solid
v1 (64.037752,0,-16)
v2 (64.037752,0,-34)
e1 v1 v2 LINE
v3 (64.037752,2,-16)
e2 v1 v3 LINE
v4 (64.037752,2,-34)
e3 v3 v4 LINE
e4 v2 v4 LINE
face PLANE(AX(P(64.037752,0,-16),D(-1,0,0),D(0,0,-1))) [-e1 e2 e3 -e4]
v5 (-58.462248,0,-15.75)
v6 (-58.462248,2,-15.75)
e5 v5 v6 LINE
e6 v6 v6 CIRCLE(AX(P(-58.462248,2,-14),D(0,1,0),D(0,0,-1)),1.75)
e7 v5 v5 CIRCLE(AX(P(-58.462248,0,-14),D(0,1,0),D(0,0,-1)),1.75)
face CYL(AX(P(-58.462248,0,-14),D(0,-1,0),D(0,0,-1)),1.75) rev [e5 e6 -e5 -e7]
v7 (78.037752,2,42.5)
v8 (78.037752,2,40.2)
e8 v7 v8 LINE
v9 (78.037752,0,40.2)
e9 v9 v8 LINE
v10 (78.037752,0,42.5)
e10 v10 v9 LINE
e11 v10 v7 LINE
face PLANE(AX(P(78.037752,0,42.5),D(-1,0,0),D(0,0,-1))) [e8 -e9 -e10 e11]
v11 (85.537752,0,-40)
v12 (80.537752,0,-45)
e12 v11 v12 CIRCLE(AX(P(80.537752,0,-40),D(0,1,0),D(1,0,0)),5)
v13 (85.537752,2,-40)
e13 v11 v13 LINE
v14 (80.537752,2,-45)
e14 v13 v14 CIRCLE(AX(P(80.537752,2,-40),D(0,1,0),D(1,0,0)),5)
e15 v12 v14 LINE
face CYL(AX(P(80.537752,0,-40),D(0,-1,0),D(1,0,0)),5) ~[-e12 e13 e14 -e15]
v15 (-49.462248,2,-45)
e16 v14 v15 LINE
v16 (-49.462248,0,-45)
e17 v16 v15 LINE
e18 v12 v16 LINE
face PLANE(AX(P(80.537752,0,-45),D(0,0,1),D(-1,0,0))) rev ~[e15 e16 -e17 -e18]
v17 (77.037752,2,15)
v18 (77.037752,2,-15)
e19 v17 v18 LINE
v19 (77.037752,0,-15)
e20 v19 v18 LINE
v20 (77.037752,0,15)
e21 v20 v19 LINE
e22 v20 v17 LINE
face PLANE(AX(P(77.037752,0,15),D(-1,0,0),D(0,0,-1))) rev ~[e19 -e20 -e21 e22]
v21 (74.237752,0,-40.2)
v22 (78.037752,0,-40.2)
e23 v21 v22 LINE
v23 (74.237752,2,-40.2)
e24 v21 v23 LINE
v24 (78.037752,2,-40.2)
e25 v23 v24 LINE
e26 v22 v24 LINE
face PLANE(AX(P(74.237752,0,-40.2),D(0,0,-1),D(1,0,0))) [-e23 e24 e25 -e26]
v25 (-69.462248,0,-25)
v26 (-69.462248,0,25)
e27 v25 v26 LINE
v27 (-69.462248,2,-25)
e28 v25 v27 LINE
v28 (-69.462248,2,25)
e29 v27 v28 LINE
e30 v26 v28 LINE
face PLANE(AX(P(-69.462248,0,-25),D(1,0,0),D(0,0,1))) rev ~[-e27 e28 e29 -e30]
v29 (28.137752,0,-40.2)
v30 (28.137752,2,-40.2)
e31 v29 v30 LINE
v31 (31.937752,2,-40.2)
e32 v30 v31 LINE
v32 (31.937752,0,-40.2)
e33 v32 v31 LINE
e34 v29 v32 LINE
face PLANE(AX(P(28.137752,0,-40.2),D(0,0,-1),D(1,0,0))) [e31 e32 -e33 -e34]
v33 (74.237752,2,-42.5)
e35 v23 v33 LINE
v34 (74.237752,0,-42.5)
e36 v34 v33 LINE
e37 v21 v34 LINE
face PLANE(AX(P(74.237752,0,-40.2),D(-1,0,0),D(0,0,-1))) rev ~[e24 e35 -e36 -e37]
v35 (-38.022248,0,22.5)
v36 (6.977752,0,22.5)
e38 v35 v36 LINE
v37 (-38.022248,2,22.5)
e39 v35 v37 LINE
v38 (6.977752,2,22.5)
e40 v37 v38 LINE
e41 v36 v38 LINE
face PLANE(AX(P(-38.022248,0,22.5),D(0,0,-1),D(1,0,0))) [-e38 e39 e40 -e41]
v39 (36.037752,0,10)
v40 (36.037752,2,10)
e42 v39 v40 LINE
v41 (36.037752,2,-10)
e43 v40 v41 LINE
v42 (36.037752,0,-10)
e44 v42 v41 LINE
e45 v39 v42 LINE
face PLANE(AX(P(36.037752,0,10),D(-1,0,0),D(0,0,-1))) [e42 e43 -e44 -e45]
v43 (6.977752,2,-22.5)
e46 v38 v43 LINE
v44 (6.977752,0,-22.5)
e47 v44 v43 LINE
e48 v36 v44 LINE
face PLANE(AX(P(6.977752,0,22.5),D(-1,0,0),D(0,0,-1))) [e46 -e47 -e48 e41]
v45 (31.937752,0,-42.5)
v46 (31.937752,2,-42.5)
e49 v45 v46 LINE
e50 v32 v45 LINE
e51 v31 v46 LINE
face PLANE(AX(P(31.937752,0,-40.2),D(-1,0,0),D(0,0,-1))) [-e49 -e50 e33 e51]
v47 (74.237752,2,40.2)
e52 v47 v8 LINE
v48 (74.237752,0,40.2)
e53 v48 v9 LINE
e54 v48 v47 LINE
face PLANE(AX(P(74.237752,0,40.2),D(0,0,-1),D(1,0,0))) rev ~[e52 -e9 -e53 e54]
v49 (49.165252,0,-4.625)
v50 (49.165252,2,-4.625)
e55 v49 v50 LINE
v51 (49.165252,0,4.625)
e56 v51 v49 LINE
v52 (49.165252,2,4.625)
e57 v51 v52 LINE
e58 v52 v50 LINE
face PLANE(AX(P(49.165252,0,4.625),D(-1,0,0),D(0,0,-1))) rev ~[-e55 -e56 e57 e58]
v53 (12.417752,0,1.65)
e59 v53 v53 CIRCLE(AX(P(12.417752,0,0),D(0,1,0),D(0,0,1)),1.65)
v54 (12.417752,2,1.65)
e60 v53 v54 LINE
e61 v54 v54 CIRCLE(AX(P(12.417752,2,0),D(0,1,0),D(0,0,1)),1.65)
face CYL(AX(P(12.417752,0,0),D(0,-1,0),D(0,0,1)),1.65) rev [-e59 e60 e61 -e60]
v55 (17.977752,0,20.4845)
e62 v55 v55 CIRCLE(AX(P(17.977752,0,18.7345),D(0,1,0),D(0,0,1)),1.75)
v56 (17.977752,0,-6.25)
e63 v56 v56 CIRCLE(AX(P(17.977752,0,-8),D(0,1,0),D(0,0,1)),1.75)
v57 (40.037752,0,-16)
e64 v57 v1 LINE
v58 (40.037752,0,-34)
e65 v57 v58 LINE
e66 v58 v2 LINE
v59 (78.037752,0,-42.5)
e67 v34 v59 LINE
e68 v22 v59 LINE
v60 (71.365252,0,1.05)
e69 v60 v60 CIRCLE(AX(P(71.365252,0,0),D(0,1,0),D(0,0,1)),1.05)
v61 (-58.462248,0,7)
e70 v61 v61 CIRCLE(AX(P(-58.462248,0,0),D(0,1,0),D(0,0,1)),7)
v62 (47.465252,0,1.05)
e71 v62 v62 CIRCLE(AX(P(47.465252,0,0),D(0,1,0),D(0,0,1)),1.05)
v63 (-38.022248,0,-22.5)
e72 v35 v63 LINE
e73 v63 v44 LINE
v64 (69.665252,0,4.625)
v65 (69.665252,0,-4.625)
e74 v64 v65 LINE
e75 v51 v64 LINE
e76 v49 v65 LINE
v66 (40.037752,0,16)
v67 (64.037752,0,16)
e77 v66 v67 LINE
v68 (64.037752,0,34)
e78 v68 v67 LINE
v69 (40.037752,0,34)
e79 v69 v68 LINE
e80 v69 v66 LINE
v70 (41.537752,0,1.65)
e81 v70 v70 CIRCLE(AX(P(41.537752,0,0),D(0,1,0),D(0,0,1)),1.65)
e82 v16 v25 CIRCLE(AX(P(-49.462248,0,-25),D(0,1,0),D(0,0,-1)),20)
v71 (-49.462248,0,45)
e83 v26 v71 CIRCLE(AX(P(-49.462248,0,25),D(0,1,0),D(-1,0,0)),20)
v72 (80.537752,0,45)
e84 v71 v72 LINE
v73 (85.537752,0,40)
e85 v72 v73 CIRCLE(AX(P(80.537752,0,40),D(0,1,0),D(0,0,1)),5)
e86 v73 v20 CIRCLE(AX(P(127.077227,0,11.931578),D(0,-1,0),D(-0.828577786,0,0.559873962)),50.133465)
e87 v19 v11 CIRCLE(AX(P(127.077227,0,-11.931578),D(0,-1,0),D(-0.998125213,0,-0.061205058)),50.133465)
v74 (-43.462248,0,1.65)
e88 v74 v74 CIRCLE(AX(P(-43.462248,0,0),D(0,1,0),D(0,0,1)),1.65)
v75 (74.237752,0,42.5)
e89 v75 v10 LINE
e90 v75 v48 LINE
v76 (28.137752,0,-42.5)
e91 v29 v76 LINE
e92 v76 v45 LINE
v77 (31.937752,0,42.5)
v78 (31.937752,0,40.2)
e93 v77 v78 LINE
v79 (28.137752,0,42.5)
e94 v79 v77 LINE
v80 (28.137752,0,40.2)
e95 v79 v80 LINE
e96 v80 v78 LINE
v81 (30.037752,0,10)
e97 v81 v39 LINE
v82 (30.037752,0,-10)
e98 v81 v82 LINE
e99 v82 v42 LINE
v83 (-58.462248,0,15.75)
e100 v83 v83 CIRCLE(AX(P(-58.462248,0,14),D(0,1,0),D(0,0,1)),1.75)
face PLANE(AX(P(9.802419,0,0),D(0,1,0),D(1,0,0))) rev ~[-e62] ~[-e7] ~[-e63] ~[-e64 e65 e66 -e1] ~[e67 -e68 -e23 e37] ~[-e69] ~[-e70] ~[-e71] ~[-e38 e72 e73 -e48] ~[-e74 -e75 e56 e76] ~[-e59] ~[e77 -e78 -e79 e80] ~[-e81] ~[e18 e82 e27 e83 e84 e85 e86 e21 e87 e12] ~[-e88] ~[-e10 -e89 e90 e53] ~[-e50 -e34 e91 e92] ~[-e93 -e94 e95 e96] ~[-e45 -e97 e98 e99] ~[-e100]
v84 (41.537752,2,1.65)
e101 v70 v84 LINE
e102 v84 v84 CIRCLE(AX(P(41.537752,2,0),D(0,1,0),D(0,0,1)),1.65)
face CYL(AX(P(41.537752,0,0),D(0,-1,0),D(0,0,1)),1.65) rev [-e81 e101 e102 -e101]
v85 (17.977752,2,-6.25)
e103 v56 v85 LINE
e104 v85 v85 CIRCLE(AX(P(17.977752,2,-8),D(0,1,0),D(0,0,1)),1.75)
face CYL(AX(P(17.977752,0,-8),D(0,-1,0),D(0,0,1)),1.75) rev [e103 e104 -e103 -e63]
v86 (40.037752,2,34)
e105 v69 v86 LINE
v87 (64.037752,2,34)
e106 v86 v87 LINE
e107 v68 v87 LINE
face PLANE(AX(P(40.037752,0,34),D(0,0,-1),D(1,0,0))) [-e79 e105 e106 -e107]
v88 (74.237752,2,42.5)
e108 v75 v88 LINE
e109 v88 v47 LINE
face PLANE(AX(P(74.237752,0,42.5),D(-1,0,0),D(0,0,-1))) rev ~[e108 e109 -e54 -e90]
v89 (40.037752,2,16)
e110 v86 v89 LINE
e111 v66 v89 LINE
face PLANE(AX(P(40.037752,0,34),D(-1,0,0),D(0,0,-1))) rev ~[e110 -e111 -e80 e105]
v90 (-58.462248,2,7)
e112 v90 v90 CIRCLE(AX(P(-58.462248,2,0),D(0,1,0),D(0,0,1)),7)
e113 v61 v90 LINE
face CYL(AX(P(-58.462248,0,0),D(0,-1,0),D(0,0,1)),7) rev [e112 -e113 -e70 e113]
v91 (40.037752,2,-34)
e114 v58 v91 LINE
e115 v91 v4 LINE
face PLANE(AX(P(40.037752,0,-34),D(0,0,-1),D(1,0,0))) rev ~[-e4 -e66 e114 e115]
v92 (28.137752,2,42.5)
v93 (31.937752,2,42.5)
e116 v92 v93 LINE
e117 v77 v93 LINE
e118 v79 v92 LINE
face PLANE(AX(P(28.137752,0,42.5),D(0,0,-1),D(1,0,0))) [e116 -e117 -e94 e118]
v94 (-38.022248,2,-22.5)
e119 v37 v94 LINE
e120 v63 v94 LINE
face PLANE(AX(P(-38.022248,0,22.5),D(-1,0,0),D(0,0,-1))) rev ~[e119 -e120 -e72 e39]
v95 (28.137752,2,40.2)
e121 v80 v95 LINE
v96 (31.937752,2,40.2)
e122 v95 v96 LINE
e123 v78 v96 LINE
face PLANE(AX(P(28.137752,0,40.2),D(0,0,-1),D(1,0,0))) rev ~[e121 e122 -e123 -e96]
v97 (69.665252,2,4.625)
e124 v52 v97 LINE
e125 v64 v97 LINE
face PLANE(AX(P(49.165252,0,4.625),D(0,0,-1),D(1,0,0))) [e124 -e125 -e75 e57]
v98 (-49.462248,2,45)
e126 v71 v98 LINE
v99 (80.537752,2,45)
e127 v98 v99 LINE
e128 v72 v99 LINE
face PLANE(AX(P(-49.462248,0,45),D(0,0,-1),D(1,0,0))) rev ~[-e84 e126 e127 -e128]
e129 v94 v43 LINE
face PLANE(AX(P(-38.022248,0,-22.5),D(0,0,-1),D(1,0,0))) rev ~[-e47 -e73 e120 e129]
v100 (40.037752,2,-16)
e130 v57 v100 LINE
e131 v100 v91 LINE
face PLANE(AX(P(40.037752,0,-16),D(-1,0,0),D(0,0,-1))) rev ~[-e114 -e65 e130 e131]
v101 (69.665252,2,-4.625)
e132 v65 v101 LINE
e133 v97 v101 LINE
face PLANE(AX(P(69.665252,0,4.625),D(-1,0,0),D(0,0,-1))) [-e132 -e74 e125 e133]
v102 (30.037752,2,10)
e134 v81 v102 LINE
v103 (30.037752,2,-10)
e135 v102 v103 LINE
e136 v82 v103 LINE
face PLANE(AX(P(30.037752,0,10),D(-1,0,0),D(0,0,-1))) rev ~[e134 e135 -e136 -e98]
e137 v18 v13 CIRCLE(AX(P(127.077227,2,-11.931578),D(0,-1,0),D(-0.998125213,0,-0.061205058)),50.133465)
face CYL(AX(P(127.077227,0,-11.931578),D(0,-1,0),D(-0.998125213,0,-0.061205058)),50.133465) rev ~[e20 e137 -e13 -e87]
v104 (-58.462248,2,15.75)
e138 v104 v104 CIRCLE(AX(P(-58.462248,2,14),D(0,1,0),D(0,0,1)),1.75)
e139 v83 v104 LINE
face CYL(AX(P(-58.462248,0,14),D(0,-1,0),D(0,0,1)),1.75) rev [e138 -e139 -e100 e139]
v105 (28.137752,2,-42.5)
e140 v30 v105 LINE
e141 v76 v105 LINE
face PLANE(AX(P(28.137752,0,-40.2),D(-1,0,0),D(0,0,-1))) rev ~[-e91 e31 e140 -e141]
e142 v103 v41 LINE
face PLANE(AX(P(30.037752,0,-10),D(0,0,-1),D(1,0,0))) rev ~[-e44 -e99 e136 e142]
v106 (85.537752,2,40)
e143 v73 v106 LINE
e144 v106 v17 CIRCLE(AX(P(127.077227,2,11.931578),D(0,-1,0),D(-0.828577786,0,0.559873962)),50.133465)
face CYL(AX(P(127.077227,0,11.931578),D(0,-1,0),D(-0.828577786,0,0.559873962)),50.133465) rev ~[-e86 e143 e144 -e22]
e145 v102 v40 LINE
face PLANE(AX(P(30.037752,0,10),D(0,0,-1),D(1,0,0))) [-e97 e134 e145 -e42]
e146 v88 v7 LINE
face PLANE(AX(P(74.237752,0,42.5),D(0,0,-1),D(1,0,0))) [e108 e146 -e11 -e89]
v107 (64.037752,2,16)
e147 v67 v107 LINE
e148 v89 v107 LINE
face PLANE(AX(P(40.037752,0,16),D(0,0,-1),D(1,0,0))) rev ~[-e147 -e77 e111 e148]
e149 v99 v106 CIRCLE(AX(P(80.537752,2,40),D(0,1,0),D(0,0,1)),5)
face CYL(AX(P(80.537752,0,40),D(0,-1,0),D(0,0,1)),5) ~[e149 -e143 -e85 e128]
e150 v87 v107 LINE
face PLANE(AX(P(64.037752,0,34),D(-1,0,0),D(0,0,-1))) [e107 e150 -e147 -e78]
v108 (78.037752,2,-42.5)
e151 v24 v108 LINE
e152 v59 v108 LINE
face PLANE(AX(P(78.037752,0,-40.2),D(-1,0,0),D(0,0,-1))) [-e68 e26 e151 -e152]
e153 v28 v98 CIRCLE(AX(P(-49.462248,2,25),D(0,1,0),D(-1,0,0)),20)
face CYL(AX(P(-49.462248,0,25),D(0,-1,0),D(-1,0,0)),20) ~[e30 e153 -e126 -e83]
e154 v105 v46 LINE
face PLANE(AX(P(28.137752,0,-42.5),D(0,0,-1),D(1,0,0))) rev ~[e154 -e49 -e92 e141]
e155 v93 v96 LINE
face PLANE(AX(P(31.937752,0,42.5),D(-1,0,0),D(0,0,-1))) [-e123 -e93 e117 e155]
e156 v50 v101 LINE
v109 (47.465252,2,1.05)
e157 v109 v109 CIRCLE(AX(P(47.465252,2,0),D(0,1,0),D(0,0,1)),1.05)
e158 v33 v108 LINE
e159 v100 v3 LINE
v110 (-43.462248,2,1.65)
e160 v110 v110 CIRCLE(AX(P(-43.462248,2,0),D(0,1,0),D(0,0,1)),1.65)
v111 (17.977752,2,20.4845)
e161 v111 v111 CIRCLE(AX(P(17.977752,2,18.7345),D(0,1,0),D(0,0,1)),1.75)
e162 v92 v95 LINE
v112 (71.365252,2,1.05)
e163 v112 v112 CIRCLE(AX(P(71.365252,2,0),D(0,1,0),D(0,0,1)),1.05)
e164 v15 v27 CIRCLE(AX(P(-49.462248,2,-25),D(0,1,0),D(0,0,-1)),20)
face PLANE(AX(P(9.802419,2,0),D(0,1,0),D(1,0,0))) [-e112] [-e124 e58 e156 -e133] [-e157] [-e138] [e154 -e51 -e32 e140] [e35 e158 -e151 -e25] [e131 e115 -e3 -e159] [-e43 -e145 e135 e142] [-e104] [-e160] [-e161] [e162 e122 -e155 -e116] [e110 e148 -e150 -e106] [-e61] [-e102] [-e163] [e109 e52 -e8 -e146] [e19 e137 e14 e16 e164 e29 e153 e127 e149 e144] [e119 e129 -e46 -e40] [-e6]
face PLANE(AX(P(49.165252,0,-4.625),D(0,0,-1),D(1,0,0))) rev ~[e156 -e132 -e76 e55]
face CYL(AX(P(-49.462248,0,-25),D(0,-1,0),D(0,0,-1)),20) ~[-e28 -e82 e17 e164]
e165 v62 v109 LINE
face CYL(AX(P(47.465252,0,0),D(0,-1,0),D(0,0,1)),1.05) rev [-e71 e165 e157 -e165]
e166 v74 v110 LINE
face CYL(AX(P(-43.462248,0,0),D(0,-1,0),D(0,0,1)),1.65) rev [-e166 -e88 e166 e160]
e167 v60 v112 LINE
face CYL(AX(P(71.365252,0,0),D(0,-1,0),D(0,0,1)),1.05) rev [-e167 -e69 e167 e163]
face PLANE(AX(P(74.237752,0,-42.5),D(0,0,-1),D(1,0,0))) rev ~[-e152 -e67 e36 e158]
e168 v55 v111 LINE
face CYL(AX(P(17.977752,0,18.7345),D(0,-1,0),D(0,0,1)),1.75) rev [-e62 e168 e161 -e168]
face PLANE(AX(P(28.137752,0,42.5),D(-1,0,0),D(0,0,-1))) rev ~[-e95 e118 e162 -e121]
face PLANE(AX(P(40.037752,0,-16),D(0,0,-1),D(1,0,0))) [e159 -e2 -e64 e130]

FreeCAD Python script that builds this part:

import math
import FreeCAD as App
import Part
import Sketcher


def add_polygon(sketch, points):
    """Adds a closed chain of lines whose ends are joined by coincident constraints."""
    first, n = sketch.GeometryCount, len(points)
    for a, b in zip(points, points[1:] + points[:1]):
        sketch.addGeometry(Part.LineSegment(App.Vector(*a, 0), App.Vector(*b, 0)), False)
    for i in range(n):
        sketch.addConstraint(Sketcher.Constraint("Coincident", first + i, 2, first + (i + 1) % n, 1))

doc = App.newDocument("Part")
body = doc.addObject("PartDesign::Body", "Body")

# Sketch on XZ plane
sketch1 = body.newObject("Sketcher::SketchObject", "Sketch")
sketch1.AttachmentSupport = (doc.getObject("XZ_Plane"), [""])
sketch1.MapMode = "FlatFace"
sketch1.addGeometry(Part.LineSegment(App.Vector(-49.5, 45, 0), App.Vector(80.5, 45, 0)), False)  # 0
sketch1.addGeometry(Part.ArcOfCircle(Part.Circle(App.Vector(80.5, 40, 0), App.Vector(0, 0, 1), 5), math.radians(0), math.radians(90)), False)  # 1
sketch1.addGeometry(Part.ArcOfCircle(Part.Circle(App.Vector(127.1, 11.9, 0), App.Vector(0, 0, 1), 50.1), math.radians(146), math.radians(176)), False)  # 2
sketch1.addGeometry(Part.LineSegment(App.Vector(77, 15, 0), App.Vector(77, -15, 0)), False)  # 3
sketch1.addGeometry(Part.ArcOfCircle(Part.Circle(App.Vector(127.1, -11.9, 0), App.Vector(0, 0, 1), 50.1), math.radians(-176), math.radians(-146)), False)  # 4
sketch1.addGeometry(Part.ArcOfCircle(Part.Circle(App.Vector(80.5, -40, 0), App.Vector(0, 0, 1), 5), math.radians(-90), math.radians(0)), False)  # 5
sketch1.addGeometry(Part.LineSegment(App.Vector(80.5, -45, 0), App.Vector(-49.5, -45, 0)), False)  # 6
sketch1.addGeometry(Part.ArcOfCircle(Part.Circle(App.Vector(-49.5, -25, 0), App.Vector(0, 0, 1), 20), math.radians(180), math.radians(270)), False)  # 7
sketch1.addGeometry(Part.LineSegment(App.Vector(-69.5, -25, 0), App.Vector(-69.5, 25, 0)), False)  # 8
sketch1.addGeometry(Part.ArcOfCircle(Part.Circle(App.Vector(-49.5, 25, 0), App.Vector(0, 0, 1), 20), math.radians(90), math.radians(180)), False)  # 9
sketch1.addGeometry(Part.Circle(App.Vector(-58.5, 14, 0), App.Vector(0, 0, 1), 1.8), False)  # 10
add_polygon(sketch1, [(31.9, 42.5), (28.1, 42.5), (28.1, 40.2), (31.9, 40.2)])  # lines 11-14
add_polygon(sketch1, [(78, 42.5), (74.2, 42.5), (74.2, 40.2), (78, 40.2)])  # lines 15-18
add_polygon(sketch1, [(64, 34), (40, 34), (40, 16), (64, 16)])  # lines 19-22
sketch1.addGeometry(Part.Circle(App.Vector(18, 18.7, 0), App.Vector(0, 0, 1), 1.8), False)  # 23
sketch1.addGeometry(Part.Circle(App.Vector(-58.5, 0, 0), App.Vector(0, 0, 1), 7), False)  # 24
sketch1.addGeometry(Part.Circle(App.Vector(-43.5, 0, 0), App.Vector(0, 0, 1), 1.6), False)  # 25
sketch1.addGeometry(Part.Circle(App.Vector(-58.5, -14, 0), App.Vector(0, 0, 1), 1.8), False)  # 26
add_polygon(sketch1, [(7, 22.5), (-38, 22.5), (-38, -22.5), (7, -22.5)])  # lines 27-30
sketch1.addGeometry(Part.Circle(App.Vector(12.4, 0, 0), App.Vector(0, 0, 1), 1.6), False)  # 31
sketch1.addGeometry(Part.Circle(App.Vector(18, -8, 0), App.Vector(0, 0, 1), 1.8), False)  # 32
add_polygon(sketch1, [(36, 10), (30, 10), (30, -10), (36, -10)])  # lines 33-36
sketch1.addGeometry(Part.Circle(App.Vector(41.5, 0, 0), App.Vector(0, 0, 1), 1.6), False)  # 37
sketch1.addGeometry(Part.Circle(App.Vector(47.5, 0, 0), App.Vector(0, 0, 1), 1.1), False)  # 38
add_polygon(sketch1, [(69.7, 4.6), (49.2, 4.6), (49.2, -4.6), (69.7, -4.6)])  # lines 39-42
sketch1.addGeometry(Part.Circle(App.Vector(71.4, 0, 0), App.Vector(0, 0, 1), 1.1), False)  # 43
add_polygon(sketch1, [(31.9, -40.2), (28.1, -40.2), (28.1, -42.5), (31.9, -42.5)])  # lines 44-47
add_polygon(sketch1, [(64, -16), (40, -16), (40, -34), (64, -34)])  # lines 48-51
add_polygon(sketch1, [(78, -40.2), (74.2, -40.2), (74.2, -42.5), (78, -42.5)])  # lines 52-55
sketch1.addConstraint([
    Sketcher.Constraint("Tangent", 0, 2, 1, 2),
    Sketcher.Constraint("Coincident", 1, 1, 2, 1),
    Sketcher.Constraint("Coincident", 2, 2, 3, 1),
    Sketcher.Constraint("Coincident", 3, 2, 4, 1),
    Sketcher.Constraint("Coincident", 4, 2, 5, 2),
    Sketcher.Constraint("Tangent", 5, 1, 6, 1),
    Sketcher.Constraint("Tangent", 6, 2, 7, 2),
    Sketcher.Constraint("Tangent", 7, 1, 8, 1),
    Sketcher.Constraint("Tangent", 8, 2, 9, 2),
    Sketcher.Constraint("Tangent", 9, 1, 0, 1),
    Sketcher.Constraint("Horizontal", 0),
    Sketcher.Constraint("Vertical", 3),
    Sketcher.Constraint("Horizontal", 6),
    Sketcher.Constraint("Vertical", 8),
    Sketcher.Constraint("Horizontal", 11),
    Sketcher.Constraint("Vertical", 12),
    Sketcher.Constraint("Horizontal", 13),
    Sketcher.Constraint("Vertical", 14),
    Sketcher.Constraint("Horizontal", 15),
    Sketcher.Constraint("Vertical", 16),
    Sketcher.Constraint("Horizontal", 17),
    Sketcher.Constraint("Vertical", 18),
    Sketcher.Constraint("Horizontal", 19),
    Sketcher.Constraint("Vertical", 20),
    Sketcher.Constraint("Horizontal", 21),
    Sketcher.Constraint("Vertical", 22),
    Sketcher.Constraint("Horizontal", 27),
    Sketcher.Constraint("Vertical", 28),
    Sketcher.Constraint("Horizontal", 29),
    Sketcher.Constraint("Vertical", 30),
    Sketcher.Constraint("Horizontal", 33),
    Sketcher.Constraint("Vertical", 34),
    Sketcher.Constraint("Horizontal", 35),
    Sketcher.Constraint("Vertical", 36),
    Sketcher.Constraint("Horizontal", 39),
    Sketcher.Constraint("Vertical", 40),
    Sketcher.Constraint("Horizontal", 41),
    Sketcher.Constraint("Vertical", 42),
    Sketcher.Constraint("Horizontal", 44),
    Sketcher.Constraint("Vertical", 45),
    Sketcher.Constraint("Horizontal", 46),
    Sketcher.Constraint("Vertical", 47),
    Sketcher.Constraint("Horizontal", 48),
    Sketcher.Constraint("Vertical", 49),
    Sketcher.Constraint("Horizontal", 50),
    Sketcher.Constraint("Vertical", 51),
    Sketcher.Constraint("Horizontal", 52),
    Sketcher.Constraint("Vertical", 53),
    Sketcher.Constraint("Horizontal", 54),
    Sketcher.Constraint("Vertical", 55),
    Sketcher.Constraint("Equal", 2, 4),
    Sketcher.Constraint("Equal", 1, 5),
    Sketcher.Constraint("Equal", 7, 9),
    Sketcher.Constraint("Equal", 10, 23),
    Sketcher.Constraint("Equal", 23, 26),
    Sketcher.Constraint("Equal", 25, 31),
    Sketcher.Constraint("Equal", 26, 32),
    Sketcher.Constraint("Equal", 31, 37),
    Sketcher.Constraint("Equal", 38, 43),
    Sketcher.Constraint("Symmetric", 2, 3, 4, 3, -1),
    Sketcher.Constraint("Symmetric", 1, 3, 5, 3, -1),
    Sketcher.Constraint("Symmetric", 10, 3, 26, 3, -1),
    Sketcher.Constraint("Symmetric", 12, 2, 44, 2, -1),
    Sketcher.Constraint("Symmetric", 14, 2, 46, 2, -1),
    Sketcher.Constraint("Symmetric", 20, 2, 48, 2, -1),
    Sketcher.Constraint("Symmetric", 22, 2, 50, 2, -1),
    Sketcher.Constraint("Symmetric", 16, 2, 52, 2, -1),
    Sketcher.Constraint("Symmetric", 18, 2, 54, 2, -1),
    Sketcher.Constraint("PointOnObject", 24, 3, -1),
    Sketcher.Constraint("PointOnObject", 25, 3, -1),
    Sketcher.Constraint("PointOnObject", 31, 3, -1),
    Sketcher.Constraint("PointOnObject", 37, 3, -1),
    Sketcher.Constraint("PointOnObject", 38, 3, -1),
    Sketcher.Constraint("PointOnObject", 43, 3, -1),
    Sketcher.Constraint("Horizontal", 5, 3, 4, 2),
    Sketcher.Constraint("Horizontal", 14, 2, 15, 2),
    Sketcher.Constraint("Horizontal", 13, 2, 16, 2),
    Sketcher.Constraint("Vertical", 10, 3, 24, 3),
    Sketcher.Constraint("Vertical", 23, 3, 32, 3),
    Sketcher.Constraint("Equal", 13, 15),
    Sketcher.Constraint("Equal", 29, 28),
    Sketcher.Constraint("Diameter", 24, 14.0),
    Sketcher.Constraint("Radius", 1, 5.0),
    Sketcher.Constraint("Radius", 7, 20.0),
    Sketcher.Constraint("Diameter", 10, 3.5),
    Sketcher.Constraint("Diameter", 25, 3.3),
    Sketcher.Constraint("Diameter", 38, 2.1),
    Sketcher.Constraint("DistanceX", 0, 1, 0, 2, 130.0),
    Sketcher.Constraint("DistanceX", 19, 2, 19, 1, 24.0),
    Sketcher.Constraint("DistanceX", 27, 2, 27, 1, 45.0),
    Sketcher.Constraint("DistanceX", 33, 2, 33, 1, 6.0),
    Sketcher.Constraint("DistanceY", 3, 2, 3, 1, 30.0),
    Sketcher.Constraint("DistanceY", 8, 1, 8, 2, 50.0),
    Sketcher.Constraint("DistanceY", 20, 2, 20, 1, 18.0),
    Sketcher.Constraint("DistanceY", 34, 2, 34, 1, 20.0),
    Sketcher.Constraint("DistanceX", 11, 2, 11, 1, 3.8),
    Sketcher.Constraint("DistanceX", 39, 2, 39, 1, 20.5),
    Sketcher.Constraint("DistanceY", 12, 2, 12, 1, 2.3),
    Sketcher.Constraint("DistanceY", -1, 1, 10, 3, 14.0),
    Sketcher.Constraint("DistanceY", 32, 3, -1, 1, 8.0),
    Sketcher.Constraint("DistanceY", -1, 1, 19, 2, 34.0),
    Sketcher.Constraint("DistanceY", -1, 1, 33, 2, 10.0),
    Sketcher.Constraint("DistanceY", 40, 2, 40, 1, 9.25),
    Sketcher.Constraint("DistanceY", -1, 1, 11, 2, 42.5),
    Sketcher.Constraint("DistanceY", -1, 1, 27, 2, 22.5),
    Sketcher.Constraint("DistanceY", -1, 1, 39, 2, 4.625),
    Sketcher.Constraint("Radius", 2, 50.133465),
    Sketcher.Constraint("DistanceY", -1, 1, 23, 3, 18.7345),
    Sketcher.Constraint("DistanceX", -1, 1, 1, 3, 80.537752),
    Sketcher.Constraint("DistanceY", -1, 1, 2, 3, 11.931578),
    Sketcher.Constraint("DistanceX", 10, 3, -1, 1, 58.462248),
    Sketcher.Constraint("DistanceX", -1, 1, 23, 3, 17.977752),
    Sketcher.Constraint("DistanceX", 25, 3, -1, 1, 43.462248),
    Sketcher.Constraint("DistanceX", -1, 1, 31, 3, 12.417752),
    Sketcher.Constraint("DistanceX", -1, 1, 37, 3, 41.537752),
    Sketcher.Constraint("DistanceX", -1, 1, 38, 3, 47.465252),
    Sketcher.Constraint("DistanceX", -1, 1, 43, 3, 71.365252),
    Sketcher.Constraint("DistanceX", -1, 1, 11, 2, 28.137752),
    Sketcher.Constraint("DistanceX", -1, 1, 15, 2, 74.237752),
    Sketcher.Constraint("DistanceX", -1, 1, 19, 2, 40.037752),
    Sketcher.Constraint("DistanceX", 27, 2, -1, 1, 38.022248),
    Sketcher.Constraint("DistanceX", -1, 1, 33, 2, 30.037752),
    Sketcher.Constraint("DistanceX", -1, 1, 39, 2, 49.165252),
])
pad1 = body.newObject("PartDesign::Pad", "Pad")
pad1.Profile = sketch1
pad1.Length = 2
pad1.Reversed = True

doc.recompute()
